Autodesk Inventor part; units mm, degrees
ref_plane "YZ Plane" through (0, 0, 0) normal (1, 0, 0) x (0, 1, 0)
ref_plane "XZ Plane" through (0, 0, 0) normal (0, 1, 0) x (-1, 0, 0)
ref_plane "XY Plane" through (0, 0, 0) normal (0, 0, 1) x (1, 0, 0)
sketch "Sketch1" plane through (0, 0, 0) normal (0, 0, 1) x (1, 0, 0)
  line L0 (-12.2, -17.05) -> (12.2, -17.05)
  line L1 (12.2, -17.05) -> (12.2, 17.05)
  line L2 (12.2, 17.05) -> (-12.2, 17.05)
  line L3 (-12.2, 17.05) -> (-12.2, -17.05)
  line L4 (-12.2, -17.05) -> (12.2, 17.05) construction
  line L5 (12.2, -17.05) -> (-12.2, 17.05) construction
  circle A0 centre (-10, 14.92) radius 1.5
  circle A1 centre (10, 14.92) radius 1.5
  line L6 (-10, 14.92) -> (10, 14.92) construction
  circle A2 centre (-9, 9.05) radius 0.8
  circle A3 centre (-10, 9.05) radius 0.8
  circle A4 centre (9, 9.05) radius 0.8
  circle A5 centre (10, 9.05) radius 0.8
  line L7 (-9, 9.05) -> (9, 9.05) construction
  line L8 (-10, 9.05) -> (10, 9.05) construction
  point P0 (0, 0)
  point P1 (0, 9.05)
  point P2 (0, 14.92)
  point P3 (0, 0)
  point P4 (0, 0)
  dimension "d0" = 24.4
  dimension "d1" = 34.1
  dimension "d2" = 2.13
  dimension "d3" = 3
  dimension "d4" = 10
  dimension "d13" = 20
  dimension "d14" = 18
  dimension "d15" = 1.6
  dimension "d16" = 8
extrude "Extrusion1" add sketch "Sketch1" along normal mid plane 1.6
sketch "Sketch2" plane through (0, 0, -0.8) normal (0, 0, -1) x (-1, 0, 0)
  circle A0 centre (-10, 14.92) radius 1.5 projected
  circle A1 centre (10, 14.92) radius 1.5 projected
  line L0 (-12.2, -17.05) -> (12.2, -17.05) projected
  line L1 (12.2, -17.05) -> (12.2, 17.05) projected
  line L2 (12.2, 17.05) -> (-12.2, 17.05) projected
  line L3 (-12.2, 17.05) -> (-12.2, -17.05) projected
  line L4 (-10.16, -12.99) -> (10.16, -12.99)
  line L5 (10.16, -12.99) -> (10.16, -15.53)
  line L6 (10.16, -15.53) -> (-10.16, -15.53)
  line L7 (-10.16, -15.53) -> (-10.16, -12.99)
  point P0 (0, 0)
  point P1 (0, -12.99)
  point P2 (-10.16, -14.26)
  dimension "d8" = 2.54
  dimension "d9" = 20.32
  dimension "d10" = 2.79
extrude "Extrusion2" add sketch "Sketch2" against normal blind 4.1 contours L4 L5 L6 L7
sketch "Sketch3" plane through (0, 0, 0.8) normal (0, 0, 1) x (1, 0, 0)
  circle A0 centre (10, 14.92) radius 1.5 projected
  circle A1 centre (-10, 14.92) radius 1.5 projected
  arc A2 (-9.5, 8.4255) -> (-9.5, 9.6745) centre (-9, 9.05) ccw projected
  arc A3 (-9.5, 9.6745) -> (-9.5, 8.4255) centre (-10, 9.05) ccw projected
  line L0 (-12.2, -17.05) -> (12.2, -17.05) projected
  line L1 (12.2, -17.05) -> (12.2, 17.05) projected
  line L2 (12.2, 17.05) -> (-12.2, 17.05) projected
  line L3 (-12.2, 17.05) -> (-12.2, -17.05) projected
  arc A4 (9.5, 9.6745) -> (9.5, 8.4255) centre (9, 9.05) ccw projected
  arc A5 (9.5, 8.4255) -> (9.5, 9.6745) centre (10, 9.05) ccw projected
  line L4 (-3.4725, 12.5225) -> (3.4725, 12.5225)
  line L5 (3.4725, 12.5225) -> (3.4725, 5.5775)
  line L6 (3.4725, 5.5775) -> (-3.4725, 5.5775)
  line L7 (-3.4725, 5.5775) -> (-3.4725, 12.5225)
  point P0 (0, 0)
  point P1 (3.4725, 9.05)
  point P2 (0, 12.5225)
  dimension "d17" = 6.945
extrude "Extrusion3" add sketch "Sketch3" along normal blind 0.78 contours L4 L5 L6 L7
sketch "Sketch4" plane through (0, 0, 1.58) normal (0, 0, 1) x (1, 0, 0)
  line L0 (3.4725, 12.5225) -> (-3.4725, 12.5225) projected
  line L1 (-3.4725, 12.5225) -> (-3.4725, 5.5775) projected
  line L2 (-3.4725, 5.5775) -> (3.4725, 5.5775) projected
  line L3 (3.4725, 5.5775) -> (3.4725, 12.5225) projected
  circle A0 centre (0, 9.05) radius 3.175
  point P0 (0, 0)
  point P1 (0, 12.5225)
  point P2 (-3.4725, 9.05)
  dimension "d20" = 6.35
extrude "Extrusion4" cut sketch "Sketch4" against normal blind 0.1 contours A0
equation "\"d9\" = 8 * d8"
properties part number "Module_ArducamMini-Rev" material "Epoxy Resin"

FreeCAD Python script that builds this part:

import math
import FreeCAD as App
import Part
import Sketcher


def add_polygon(sketch, points):
    """Adds a closed chain of lines whose ends are joined by coincident constraints."""
    first, n = sketch.GeometryCount, len(points)
    for a, b in zip(points, points[1:] + points[:1]):
        sketch.addGeometry(Part.LineSegment(App.Vector(*a, 0), App.Vector(*b, 0)), False)
    for i in range(n):
        sketch.addConstraint(Sketcher.Constraint("Coincident", first + i, 2, first + (i + 1) % n, 1))

doc = App.newDocument("Part")
params = doc.addObject("Spreadsheet::Sheet", "Params")
for row, (alias, value) in enumerate([
    ("sketch1_diameter", "3 mm"),
    ("sketch1_radius", "0.8 mm"),
    ("sketch1_width", "24.4 mm"),
    ("sketch1_height", "34.1 mm"),
    ("pad1_length", "1.6 mm"),
    ("sketch2_width", "20.32 mm"),
    ("sketch2_height", "2.54 mm"),
    ("pad2_length", "4.1 mm"),
    ("pad3_length", "0.78 mm"),
    ("sketch4_diameter", "6.35 mm"),
    ("pocket1_length", "0.1 mm"),
], start=1):
    params.set(f"A{row}", alias)
    params.set(f"B{row}", "=" + value)
    params.setAlias(f"B{row}", alias)

body = doc.addObject("PartDesign::Body", "Body")

# Sketch on XY plane
sketch1 = body.newObject("Sketcher::SketchObject", "Sketch")
sketch1.AttachmentSupport = (doc.getObject("XY_Plane"), [""])
sketch1.MapMode = "FlatFace"
add_polygon(sketch1, [(-12.2, 17.1), (-12.2, -17.1), (12.2, -17.1), (12.2, 17.1)])  # lines 0-3
sketch1.addGeometry(Part.ArcOfCircle(Part.Circle(App.Vector(-9, 9.1, 0), App.Vector(0, 0, 1), 0.8), math.radians(-129), math.radians(129)), False)  # 4
sketch1.addGeometry(Part.ArcOfCircle(Part.Circle(App.Vector(-10, 9.1, 0), App.Vector(0, 0, 1), 0.8), math.radians(51), math.radians(309)), False)  # 5
sketch1.addGeometry(Part.Circle(App.Vector(-10, 14.9, 0), App.Vector(0, 0, 1), 1.5), False)  # 6
sketch1.addGeometry(Part.ArcOfCircle(Part.Circle(App.Vector(9, 9.1, 0), App.Vector(0, 0, 1), 0.8), math.radians(51), math.radians(309)), False)  # 7
sketch1.addGeometry(Part.ArcOfCircle(Part.Circle(App.Vector(10, 9.1, 0), App.Vector(0, 0, 1), 0.8), math.radians(-129), math.radians(129)), False)  # 8
sketch1.addGeometry(Part.Circle(App.Vector(10, 14.9, 0), App.Vector(0, 0, 1), 1.5), False)  # 9
sketch1.addConstraint([
    Sketcher.Constraint("Coincident", 4, 1, 5, 2),
    Sketcher.Constraint("Coincident", 5, 1, 4, 2),
    Sketcher.Constraint("Coincident", 7, 1, 8, 2),
    Sketcher.Constraint("Coincident", 8, 1, 7, 2),
    Sketcher.Constraint("Vertical", 0),
    Sketcher.Constraint("Horizontal", 1),
    Sketcher.Constraint("Vertical", 2),
    Sketcher.Constraint("Horizontal", 3),
    Sketcher.Constraint("Equal", 4, 5),
    Sketcher.Constraint("Equal", 5, 7),
    Sketcher.Constraint("Equal", 7, 8),
    Sketcher.Constraint("Equal", 6, 9),
    Sketcher.Constraint("Symmetric", 0, 2, 2, 2, -1, 1),
    Sketcher.Constraint("Symmetric", 4, 3, 7, 3, -2),
    Sketcher.Constraint("Symmetric", 5, 3, 8, 3, -2),
    Sketcher.Constraint("Symmetric", 6, 3, 9, 3, -2),
    Sketcher.Constraint("Horizontal", 4, 3, 5, 3),
    Sketcher.Constraint("Vertical", 5, 3, 6, 3),
    Sketcher.Constraint("Diameter", 6, 3.0),
    Sketcher.Constraint("Radius", 4, 0.8),
    Sketcher.Constraint("DistanceX", 1, 1, 1, 2, 24.4),
    Sketcher.Constraint("DistanceY", 0, 2, 0, 1, 34.1),
    Sketcher.Constraint("DistanceX", 5, 3, -1, 1, 10.0),
    Sketcher.Constraint("DistanceX", 4, 3, 7, 3, 18.0),
    Sketcher.Constraint("DistanceY", 8, 3, 2, 2, 8.0),
    Sketcher.Constraint("DistanceY", 9, 3, 2, 2, 2.13),
])
sketch1.setExpression("Constraints[22]", "Params.sketch1_diameter")
sketch1.setExpression("Constraints[23]", "Params.sketch1_radius")
sketch1.setExpression("Constraints[24]", "Params.sketch1_width")
sketch1.setExpression("Constraints[25]", "Params.sketch1_height")
pad1 = body.newObject("PartDesign::Pad", "Pad")
pad1.Profile = sketch1
pad1.setExpression("Length", "Params.pad1_length")
pad1.Midplane = True

# Sketch on XY plane
sketch2 = body.newObject("Sketcher::SketchObject", "Sketch001")
sketch2.AttachmentSupport = (doc.getObject("XY_Plane"), [""])
sketch2.MapMode = "FlatFace"
sketch2.AttachmentOffset = App.Placement(App.Vector(0, 0, -0.8), App.Rotation())
add_polygon(sketch2, [(-10.2, -13), (10.2, -13), (10.2, -15.5), (-10.2, -15.5)])  # lines 0-3
sketch2.addConstraint([
    Sketcher.Constraint("Horizontal", 0),
    Sketcher.Constraint("Vertical", 1),
    Sketcher.Constraint("Horizontal", 2),
    Sketcher.Constraint("Vertical", 3),
    Sketcher.Constraint("DistanceX", 0, 1, 0, 2, 20.32),
    Sketcher.Constraint("DistanceY", 1, 2, 1, 1, 2.54),
    Sketcher.Constraint("DistanceX", -1, 1, 0, 2, 10.16),
    Sketcher.Constraint("DistanceY", 0, 2, -1, 1, 12.99),
])
sketch2.setExpression("Constraints[8]", "Params.sketch2_width")
sketch2.setExpression("Constraints[9]", "Params.sketch2_height")
pad2 = body.newObject("PartDesign::Pad", "Pad001")
pad2.Profile = sketch2
pad2.setExpression("Length", "Params.pad2_length")

# Sketch on XY plane
sketch3 = body.newObject("Sketcher::SketchObject", "Sketch002")
sketch3.AttachmentSupport = (doc.getObject("XY_Plane"), [""])
sketch3.MapMode = "FlatFace"
sketch3.AttachmentOffset = App.Placement(App.Vector(0, 0, 0.8), App.Rotation())
add_polygon(sketch3, [(3, 13), (-3, 13), (-3, 6), (3, 6)])  # lines 0-3
sketch3.addConstraint([
    Sketcher.Constraint("Horizontal", 0),
    Sketcher.Constraint("Vertical", 1),
    Sketcher.Constraint("Horizontal", 2),
    Sketcher.Constraint("Vertical", 3),
    Sketcher.Constraint("Equal", 2, 1),
    Sketcher.Constraint("DistanceX", 0, 2, 0, 1, 6.945),
    Sketcher.Constraint("DistanceX", 0, 2, -1, 1, 3.4725),
    Sketcher.Constraint("DistanceY", -1, 1, 0, 2, 12.5225),
])
pad3 = body.newObject("PartDesign::Pad", "Pad002")
pad3.Profile = sketch3
pad3.setExpression("Length", "Params.pad3_length")

# Sketch on XY plane
sketch4 = body.newObject("Sketcher::SketchObject", "Sketch003")
sketch4.AttachmentSupport = (doc.getObject("XY_Plane"), [""])
sketch4.MapMode = "FlatFace"
sketch4.AttachmentOffset = App.Placement(App.Vector(0, 0, 1.58), App.Rotation())
sketch4.addGeometry(Part.Circle(App.Vector(0, 9.1, 0), App.Vector(0, 0, 1), 3.2), False)
sketch4.addConstraint([
    Sketcher.Constraint("PointOnObject", 0, 3, -2),
    Sketcher.Constraint("Diameter", 0, 6.35),
    Sketcher.Constraint("DistanceY", -1, 1, 0, 3, 9.05),
])
sketch4.setExpression("Constraints[1]", "Params.sketch4_diameter")
pocket1 = body.newObject("PartDesign::Pocket", "Pocket")
pocket1.Profile = sketch4
pocket1.setExpression("Length", "Params.pocket1_length")

doc.recompute()
